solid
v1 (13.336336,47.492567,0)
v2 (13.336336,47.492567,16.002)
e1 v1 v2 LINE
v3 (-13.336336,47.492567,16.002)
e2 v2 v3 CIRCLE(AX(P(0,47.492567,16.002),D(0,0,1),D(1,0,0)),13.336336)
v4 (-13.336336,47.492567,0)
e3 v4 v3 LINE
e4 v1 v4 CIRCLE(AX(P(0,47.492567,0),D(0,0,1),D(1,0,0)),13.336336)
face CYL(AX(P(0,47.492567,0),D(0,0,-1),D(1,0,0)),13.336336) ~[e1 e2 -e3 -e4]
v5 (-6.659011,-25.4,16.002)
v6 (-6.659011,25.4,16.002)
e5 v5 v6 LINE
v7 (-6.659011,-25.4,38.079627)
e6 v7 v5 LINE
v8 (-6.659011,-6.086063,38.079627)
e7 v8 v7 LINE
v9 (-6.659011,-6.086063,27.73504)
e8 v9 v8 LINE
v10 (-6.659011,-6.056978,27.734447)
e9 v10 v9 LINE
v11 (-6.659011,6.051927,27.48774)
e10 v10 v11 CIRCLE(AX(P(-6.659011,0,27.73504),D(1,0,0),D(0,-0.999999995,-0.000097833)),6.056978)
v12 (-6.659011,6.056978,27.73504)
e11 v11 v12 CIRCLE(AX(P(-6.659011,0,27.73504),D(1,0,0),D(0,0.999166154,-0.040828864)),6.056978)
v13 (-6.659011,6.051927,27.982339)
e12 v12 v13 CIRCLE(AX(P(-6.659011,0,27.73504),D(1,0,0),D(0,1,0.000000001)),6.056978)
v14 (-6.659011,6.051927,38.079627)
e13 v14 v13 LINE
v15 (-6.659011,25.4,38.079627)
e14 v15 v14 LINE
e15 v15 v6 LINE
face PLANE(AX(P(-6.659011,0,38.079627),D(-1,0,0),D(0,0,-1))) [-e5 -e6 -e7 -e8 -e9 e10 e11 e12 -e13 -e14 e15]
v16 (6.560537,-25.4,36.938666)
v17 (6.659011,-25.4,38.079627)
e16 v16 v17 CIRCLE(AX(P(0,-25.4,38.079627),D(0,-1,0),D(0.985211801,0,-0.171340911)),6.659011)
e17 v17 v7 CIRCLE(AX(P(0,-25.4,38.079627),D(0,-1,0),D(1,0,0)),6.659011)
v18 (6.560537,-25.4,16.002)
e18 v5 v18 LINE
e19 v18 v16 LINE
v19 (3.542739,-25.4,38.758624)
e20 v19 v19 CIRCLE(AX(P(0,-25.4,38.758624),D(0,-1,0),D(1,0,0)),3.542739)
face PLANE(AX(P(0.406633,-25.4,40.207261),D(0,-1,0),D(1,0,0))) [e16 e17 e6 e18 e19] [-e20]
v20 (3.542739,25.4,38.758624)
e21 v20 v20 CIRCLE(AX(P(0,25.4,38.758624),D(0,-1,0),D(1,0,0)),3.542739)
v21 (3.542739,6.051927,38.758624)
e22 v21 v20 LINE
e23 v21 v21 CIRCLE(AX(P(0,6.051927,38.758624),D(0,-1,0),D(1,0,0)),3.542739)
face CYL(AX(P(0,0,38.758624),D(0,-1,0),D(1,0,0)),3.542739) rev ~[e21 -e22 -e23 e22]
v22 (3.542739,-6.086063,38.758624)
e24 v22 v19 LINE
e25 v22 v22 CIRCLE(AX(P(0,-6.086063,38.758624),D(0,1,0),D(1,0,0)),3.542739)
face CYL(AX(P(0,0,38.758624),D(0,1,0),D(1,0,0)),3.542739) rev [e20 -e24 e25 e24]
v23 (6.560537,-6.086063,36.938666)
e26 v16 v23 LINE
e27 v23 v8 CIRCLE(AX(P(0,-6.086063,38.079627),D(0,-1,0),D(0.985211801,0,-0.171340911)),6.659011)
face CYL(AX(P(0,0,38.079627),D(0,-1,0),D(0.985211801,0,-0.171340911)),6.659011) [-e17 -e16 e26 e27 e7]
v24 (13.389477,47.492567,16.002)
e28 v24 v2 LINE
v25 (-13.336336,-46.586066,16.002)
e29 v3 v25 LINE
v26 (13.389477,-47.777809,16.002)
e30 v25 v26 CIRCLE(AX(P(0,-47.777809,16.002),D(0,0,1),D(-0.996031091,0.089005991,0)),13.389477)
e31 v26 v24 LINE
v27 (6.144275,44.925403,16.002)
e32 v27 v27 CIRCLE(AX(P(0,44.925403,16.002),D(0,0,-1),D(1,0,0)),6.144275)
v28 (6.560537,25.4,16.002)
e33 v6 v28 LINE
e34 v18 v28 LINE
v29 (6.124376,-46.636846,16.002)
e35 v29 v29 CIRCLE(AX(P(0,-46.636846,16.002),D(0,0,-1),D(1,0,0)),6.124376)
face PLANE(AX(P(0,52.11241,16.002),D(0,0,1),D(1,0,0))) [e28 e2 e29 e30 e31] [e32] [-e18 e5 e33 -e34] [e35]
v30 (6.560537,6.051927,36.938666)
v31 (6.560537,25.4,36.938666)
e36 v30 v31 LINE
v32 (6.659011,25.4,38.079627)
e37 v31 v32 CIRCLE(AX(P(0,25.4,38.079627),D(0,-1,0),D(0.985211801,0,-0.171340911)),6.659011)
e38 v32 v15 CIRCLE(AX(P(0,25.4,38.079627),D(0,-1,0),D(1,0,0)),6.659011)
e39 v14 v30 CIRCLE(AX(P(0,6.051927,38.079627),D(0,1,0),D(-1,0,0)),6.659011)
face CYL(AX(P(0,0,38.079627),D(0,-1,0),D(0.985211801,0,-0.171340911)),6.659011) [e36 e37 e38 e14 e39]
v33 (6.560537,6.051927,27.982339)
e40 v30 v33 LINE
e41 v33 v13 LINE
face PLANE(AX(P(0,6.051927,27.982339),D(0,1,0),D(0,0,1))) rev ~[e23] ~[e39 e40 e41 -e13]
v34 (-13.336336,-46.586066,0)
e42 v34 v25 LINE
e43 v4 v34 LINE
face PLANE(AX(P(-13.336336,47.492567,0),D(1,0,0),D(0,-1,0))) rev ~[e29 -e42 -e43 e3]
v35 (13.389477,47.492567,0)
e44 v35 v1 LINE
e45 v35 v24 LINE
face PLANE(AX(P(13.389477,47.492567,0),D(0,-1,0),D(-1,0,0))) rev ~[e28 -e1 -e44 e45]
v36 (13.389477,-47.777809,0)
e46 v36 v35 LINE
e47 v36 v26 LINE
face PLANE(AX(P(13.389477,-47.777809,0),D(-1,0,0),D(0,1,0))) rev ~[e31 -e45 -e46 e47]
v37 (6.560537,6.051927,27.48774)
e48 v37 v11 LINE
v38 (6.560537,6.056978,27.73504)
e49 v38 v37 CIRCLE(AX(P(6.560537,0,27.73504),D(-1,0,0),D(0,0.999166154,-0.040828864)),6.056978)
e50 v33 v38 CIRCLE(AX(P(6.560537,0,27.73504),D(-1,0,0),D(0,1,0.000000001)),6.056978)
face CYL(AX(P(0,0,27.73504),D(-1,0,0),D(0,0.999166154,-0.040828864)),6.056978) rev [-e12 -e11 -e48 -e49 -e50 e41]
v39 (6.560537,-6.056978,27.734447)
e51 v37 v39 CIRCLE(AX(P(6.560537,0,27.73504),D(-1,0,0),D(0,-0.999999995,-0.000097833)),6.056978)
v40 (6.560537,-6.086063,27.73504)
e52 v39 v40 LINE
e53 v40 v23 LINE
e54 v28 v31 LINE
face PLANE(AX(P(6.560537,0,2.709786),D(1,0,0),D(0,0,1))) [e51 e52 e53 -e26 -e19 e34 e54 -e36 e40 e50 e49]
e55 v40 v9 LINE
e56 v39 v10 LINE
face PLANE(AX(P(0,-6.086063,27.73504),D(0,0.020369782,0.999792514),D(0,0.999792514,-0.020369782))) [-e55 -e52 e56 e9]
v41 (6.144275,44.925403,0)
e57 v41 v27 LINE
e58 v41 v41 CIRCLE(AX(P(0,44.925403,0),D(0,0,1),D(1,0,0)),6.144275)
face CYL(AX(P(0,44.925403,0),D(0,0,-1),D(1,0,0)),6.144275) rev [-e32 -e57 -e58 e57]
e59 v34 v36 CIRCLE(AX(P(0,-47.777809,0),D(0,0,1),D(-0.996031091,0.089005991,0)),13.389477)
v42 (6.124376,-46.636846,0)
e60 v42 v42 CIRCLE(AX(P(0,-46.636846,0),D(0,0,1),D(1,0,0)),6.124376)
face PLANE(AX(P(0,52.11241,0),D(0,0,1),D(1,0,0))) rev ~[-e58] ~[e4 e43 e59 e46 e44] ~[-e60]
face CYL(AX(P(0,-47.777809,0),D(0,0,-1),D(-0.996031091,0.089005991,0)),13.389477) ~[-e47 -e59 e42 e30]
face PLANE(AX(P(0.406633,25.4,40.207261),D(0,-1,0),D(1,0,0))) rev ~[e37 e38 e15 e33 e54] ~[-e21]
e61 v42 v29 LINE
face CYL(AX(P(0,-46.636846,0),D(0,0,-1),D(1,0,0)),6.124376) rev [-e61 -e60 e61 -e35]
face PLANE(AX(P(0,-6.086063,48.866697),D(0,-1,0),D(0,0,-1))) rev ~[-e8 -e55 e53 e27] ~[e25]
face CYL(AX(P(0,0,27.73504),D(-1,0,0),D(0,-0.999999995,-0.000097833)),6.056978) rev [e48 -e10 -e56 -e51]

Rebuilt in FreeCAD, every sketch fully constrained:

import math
import FreeCAD as App
import Part
import Sketcher
from FreeCAD import Vector
Q = App.Units.Quantity

doc = App.newDocument("Part")
body = doc.addObject("PartDesign::Body", "Body")

sketch1 = doc.addObject("Sketcher::SketchObject", "Sketch")
body.addObject(sketch1)
sketch1.AttachmentSupport = (doc.XY_Plane, [""])
sketch1.MapMode = "FlatFace"
sketch1.addGeometry([
    Part.ArcOfCircle(Part.Circle(Vector(0, 47.492567, 0), Vector(0, 0, 1), 13.336336), math.radians(0), math.radians(180)),
    Part.LineSegment(Vector(-13.336336, 47.492567, 0), Vector(-13.336336, -46.586066, 0)),
    Part.ArcOfCircle(Part.Circle(Vector(0, -47.777809, 0), Vector(0, 0, 1), 13.389477), math.radians(174.893575), math.radians(360)),
    Part.LineSegment(Vector(13.389477, -47.777809, 0), Vector(13.389477, 47.492567, 0)),
    Part.LineSegment(Vector(13.389477, 47.492567, 0), Vector(13.336336, 47.492567, 0)),
], False)
sketch1.addConstraint([
    Sketcher.Constraint("Tangent", 0, 2, 1, 1),
    Sketcher.Constraint("Coincident", 1, 2, 2, 1),
    Sketcher.Constraint("Tangent", 2, 2, 3, 1),
    Sketcher.Constraint("Coincident", 3, 2, 4, 1),
    Sketcher.Constraint("Coincident", 4, 2, 0, 1),
    Sketcher.Constraint("Vertical", 1),
    Sketcher.Constraint("Vertical", 3),
    Sketcher.Constraint("Horizontal", 4),
    Sketcher.Constraint("Symmetric", 0, 2, 4, 2, -2),
    Sketcher.Constraint("PointOnObject", 2, 3, -2),
    Sketcher.Constraint("Radius", 0, 13.336336),
    Sketcher.Constraint("Radius", 2, 13.389477),
    Sketcher.Constraint("DistanceY", 1, 2, 1, 1, 94.078633),
    Sketcher.Constraint("DistanceY", 2, 3, -1, 1, 47.777809),
])
pad1 = doc.addObject("PartDesign::Pad", "Pad")
body.addObject(pad1)
pad1.Profile = sketch1
pad1.Length = Q("0.63 in")

sketch2 = doc.addObject("Sketcher::SketchObject", "Sketch001")
body.addObject(sketch2)
sketch2.AttachmentSupport = (doc.XY_Plane, [""])
sketch2.MapMode = "FlatFace"
sketch2.addGeometry([
    Part.Circle(Vector(0, 44.925403, 0), Vector(0, 0, 1), 6.144275),
    Part.Circle(Vector(0, -46.636846, 0), Vector(0, 0, 1), 6.124376),
], False)
sketch2.addConstraint([
    Sketcher.Constraint("PointOnObject", 0, 3, -2),
    Sketcher.Constraint("PointOnObject", 1, 3, -2),
    Sketcher.Constraint("Diameter", 0, 12.288551),
    Sketcher.Constraint("Diameter", 1, 12.248752),
    Sketcher.Constraint("DistanceY", 1, 3, 0, 3, 91.562249),
    Sketcher.Constraint("DistanceY", -1, 1, 0, 3, 44.925403),
])
pocket1 = doc.addObject("PartDesign::Pocket", "Pocket")
body.addObject(pocket1)
pocket1.Profile = sketch2
pocket1.Type = "ThroughAll"
pocket1.Reversed = True

sketch3 = doc.addObject("Sketcher::SketchObject", "Sketch002")
body.addObject(sketch3)
sketch3.AttachmentSupport = (doc.XZ_Plane, [""])
sketch3.MapMode = "FlatFace"
sketch3.addGeometry([
    Part.ArcOfCircle(Part.Circle(Vector(0, 38.079627, 0), Vector(0, 0, 1), 6.659011), math.radians(-9.865792), math.radians(0)),
    Part.ArcOfCircle(Part.Circle(Vector(0, 38.079627, 0), Vector(0, 0, 1), 6.659011), math.radians(0), math.radians(180)),
    Part.LineSegment(Vector(-6.659011, 38.079627, 0), Vector(-6.659011, 2.709786, 0)),
    Part.LineSegment(Vector(-6.659011, 2.709786, 0), Vector(6.560537, 2.709786, 0)),
    Part.LineSegment(Vector(6.560537, 2.709786, 0), Vector(6.560537, 36.938666, 0)),
], False)
sketch3.addConstraint([
    Sketcher.Constraint("Tangent", 0, 2, 1, 1),
    Sketcher.Constraint("Tangent", 1, 2, 2, 1),
    Sketcher.Constraint("Coincident", 2, 2, 3, 1),
    Sketcher.Constraint("Coincident", 3, 2, 4, 1),
    Sketcher.Constraint("Coincident", 4, 2, 0, 1),
    Sketcher.Constraint("Vertical", 2),
    Sketcher.Constraint("Horizontal", 3),
    Sketcher.Constraint("Vertical", 4),
    Sketcher.Constraint("Equal", 0, 1),
    Sketcher.Constraint("Symmetric", 0, 2, 1, 2, -2),
    Sketcher.Constraint("Radius", 0, 6.659011),
    Sketcher.Constraint("DistanceY", 2, 2, 2, 1, 35.369841),
    Sketcher.Constraint("DistanceY", 4, 1, 4, 2, 34.22888),
    Sketcher.Constraint("DistanceY", -1, 1, 0, 3, 38.079627),
])
pad2 = doc.addObject("PartDesign::Pad", "Pad001")
body.addObject(pad2)
pad2.Profile = sketch3
pad2.Type = "TwoLengths"
pad2.Length = Q("1 in")
pad2.Length2 = Q("1 in")

sketch4 = doc.addObject("Sketcher::SketchObject", "Sketch003")
body.addObject(sketch4)
sketch4.AttachmentSupport = (doc.YZ_Plane, [""])
sketch4.MapMode = "FlatFace"
sketch4.addGeometry([
    Part.ArcOfCircle(Part.Circle(Vector(0, 27.73504, 0), Vector(0, 0, 1), 6.056978), math.radians(-2.339972), math.radians(0)),
    Part.ArcOfCircle(Part.Circle(Vector(0, 27.73504, 0), Vector(0, 0, 1), 6.056978), math.radians(0), math.radians(2.339972)),
    Part.LineSegment(Vector(6.051927, 27.982339, 0), Vector(6.051927, 48.866697, 0)),
    Part.LineSegment(Vector(6.051927, 48.866697, 0), Vector(-6.086063, 48.866697, 0)),
    Part.LineSegment(Vector(-6.086063, 48.866697, 0), Vector(-6.086063, 27.73504, 0)),
    Part.LineSegment(Vector(-6.086063, 27.73504, 0), Vector(-6.056978, 27.734447, 0)),
    Part.ArcOfCircle(Part.Circle(Vector(0, 27.73504, 0), Vector(0, 0, 1), 6.056978), math.radians(-179.994395), math.radians(-2.339972)),
], False)
sketch4.addConstraint([
    Sketcher.Constraint("Tangent", 0, 2, 1, 1),
    Sketcher.Constraint("Coincident", 1, 2, 2, 1),
    Sketcher.Constraint("Coincident", 2, 2, 3, 1),
    Sketcher.Constraint("Coincident", 3, 2, 4, 1),
    Sketcher.Constraint("Coincident", 4, 2, 5, 1),
    Sketcher.Constraint("Coincident", 5, 2, 6, 1),
    Sketcher.Constraint("Tangent", 6, 2, 0, 1),
    Sketcher.Constraint("Vertical", 2),
    Sketcher.Constraint("Horizontal", 3),
    Sketcher.Constraint("Vertical", 4),
    Sketcher.Constraint("Equal", 0, 1),
    Sketcher.Constraint("Equal", 1, 6),
    Sketcher.Constraint("PointOnObject", 0, 3, -2),
    Sketcher.Constraint("Horizontal", 6, 3, 0, 2),
    Sketcher.Constraint("Horizontal", 0, 2, 4, 2),
    Sketcher.Constraint("Vertical", 2, 2, 6, 2),
    Sketcher.Constraint("Radius", 0, 6.056978),
    Sketcher.Constraint("DistanceX", 3, 2, 3, 1, 12.13799),
    Sketcher.Constraint("DistanceY", 0, 2, 1, 2, 0.2473),
    Sketcher.Constraint("Distance", 5, 0.029091),
    Sketcher.Constraint("DistanceY", 2, 1, 2, 2, 20.884358),
    Sketcher.Constraint("DistanceY", -1, 1, 0, 3, 27.73504),
])
pocket2 = doc.addObject("PartDesign::Pocket", "Pocket001")
body.addObject(pocket2)
pocket2.Profile = sketch4
pocket2.Type = "ThroughAll"
pocket2.Midplane = True

sketch5 = doc.addObject("Sketcher::SketchObject", "Sketch004")
body.addObject(sketch5)
sketch5.AttachmentSupport = (doc.XZ_Plane, [""])
sketch5.MapMode = "FlatFace"
sketch5.addGeometry(Part.Circle(Vector(0, 38.758624, 0), Vector(0, 0, 1), 3.542739), False)
sketch5.addConstraint([
    Sketcher.Constraint("PointOnObject", 0, 3, -2),
    Sketcher.Constraint("Diameter", 0, 7.085478),
    Sketcher.Constraint("DistanceY", -1, 1, 0, 3, 38.758624),
])
pocket3 = doc.addObject("PartDesign::Pocket", "Pocket002")
body.addObject(pocket3)
pocket3.Profile = sketch5
pocket3.Type = "ThroughAll"
pocket3.Midplane = True

doc.recompute()
